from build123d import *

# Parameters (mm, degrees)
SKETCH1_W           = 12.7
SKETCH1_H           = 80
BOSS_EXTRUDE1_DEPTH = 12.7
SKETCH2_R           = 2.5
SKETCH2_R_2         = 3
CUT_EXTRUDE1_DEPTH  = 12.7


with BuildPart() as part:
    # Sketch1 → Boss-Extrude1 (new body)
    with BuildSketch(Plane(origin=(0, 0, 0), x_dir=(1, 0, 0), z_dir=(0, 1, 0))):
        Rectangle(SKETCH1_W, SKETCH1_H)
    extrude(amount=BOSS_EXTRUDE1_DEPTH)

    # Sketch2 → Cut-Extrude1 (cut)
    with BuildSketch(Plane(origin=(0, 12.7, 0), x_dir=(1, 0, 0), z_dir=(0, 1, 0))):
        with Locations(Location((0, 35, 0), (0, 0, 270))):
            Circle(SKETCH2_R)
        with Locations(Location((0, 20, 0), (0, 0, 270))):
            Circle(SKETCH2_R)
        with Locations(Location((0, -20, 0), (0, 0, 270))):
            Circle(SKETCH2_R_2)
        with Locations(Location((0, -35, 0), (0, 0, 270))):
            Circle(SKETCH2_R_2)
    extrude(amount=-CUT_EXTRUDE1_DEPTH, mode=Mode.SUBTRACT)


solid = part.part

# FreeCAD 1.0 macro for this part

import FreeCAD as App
import Part
import Sketcher

V = App.Vector
Q = App.Units.Quantity


def add_polygon(sketch, points):
    """Adds a closed chain of lines whose ends are joined by coincident constraints."""
    first, n = sketch.GeometryCount, len(points)
    for a, b in zip(points, points[1:] + points[:1]):
        sketch.addGeometry(Part.LineSegment(App.Vector(*a, 0), App.Vector(*b, 0)), False)
    for i in range(n):
        sketch.addConstraint(Sketcher.Constraint("Coincident", first + i, 2, first + (i + 1) % n, 1))

doc = App.newDocument("Part")
body = doc.addObject("PartDesign::Body", "Body")

# Sketch on XZ plane
sketch1 = body.newObject("Sketcher::SketchObject", "Sketch")
sketch1.AttachmentSupport = (doc.getObject("XZ_Plane"), [""])
sketch1.MapMode = "FlatFace"
add_polygon(sketch1, [(-6, -40), (-6, 40), (6, 40), (6, -40)])  # lines 0-3
sketch1.addConstraint(Sketcher.Constraint("Vertical", 0))
sketch1.addConstraint(Sketcher.Constraint("Horizontal", 1))
sketch1.addConstraint(Sketcher.Constraint("Vertical", 2))
sketch1.addConstraint(Sketcher.Constraint("Horizontal", 3))
sketch1.addConstraint(Sketcher.Constraint("Symmetric", 0, 2, 2, 2, -1, 1))
sketch1.addConstraint(Sketcher.Constraint("DistanceY", 0, 1, 0, 2, Q("80 mm")))
sketch1.addConstraint(Sketcher.Constraint("DistanceX", 1, 1, 1, 2, Q("12.7 mm")))
pad1 = body.newObject("PartDesign::Pad", "Pad")
pad1.Profile = sketch1
pad1.Length = 12.7
pad1.Reversed = True

# Sketch on XZ plane
sketch2 = body.newObject("Sketcher::SketchObject", "Sketch001")
sketch2.AttachmentSupport = (doc.getObject("XZ_Plane"), [""])
sketch2.MapMode = "FlatFace"
sketch2.AttachmentOffset = App.Placement(V(0, 0, -12.7), App.Rotation())
sketch2.addGeometry(Part.Circle(V(0, -35, 0), V(0, 0, 1), 2.5), False)
sketch2.addGeometry(Part.Circle(V(0, -20, 0), V(0, 0, 1), 2.5), False)
sketch2.addGeometry(Part.Circle(V(0, 20, 0), V(0, 0, 1), 3), False)
sketch2.addGeometry(Part.Circle(V(0, 35, 0), V(0, 0, 1), 3), False)
sketch2.addConstraint(Sketcher.Constraint("Equal", 0, 1))
sketch2.addConstraint(Sketcher.Constraint("Equal", 2, 3))
sketch2.addConstraint(Sketcher.Constraint("Symmetric", 1, 3, 2, 3, -1, 1))
sketch2.addConstraint(Sketcher.Constraint("Symmetric", 0, 3, 3, 3, -1, 1))
sketch2.addConstraint(Sketcher.Constraint("PointOnObject", 0, 3, -2))
sketch2.addConstraint(Sketcher.Constraint("PointOnObject", 1, 3, -2))
sketch2.addConstraint(Sketcher.Constraint("Diameter", 0, Q("5 mm")))
sketch2.addConstraint(Sketcher.Constraint("Diameter", 2, Q("6 mm")))
sketch2.addConstraint(Sketcher.Constraint("DistanceY", 0, 3, -1, 1, Q("35 mm")))
sketch2.addConstraint(Sketcher.Constraint("DistanceY", 1, 3, -1, 1, Q("20 mm")))
pocket1 = body.newObject("PartDesign::Pocket", "Pocket")
pocket1.Profile = sketch2
pocket1.Length = 12.7
pocket1.Reversed = True

doc.recompute()
